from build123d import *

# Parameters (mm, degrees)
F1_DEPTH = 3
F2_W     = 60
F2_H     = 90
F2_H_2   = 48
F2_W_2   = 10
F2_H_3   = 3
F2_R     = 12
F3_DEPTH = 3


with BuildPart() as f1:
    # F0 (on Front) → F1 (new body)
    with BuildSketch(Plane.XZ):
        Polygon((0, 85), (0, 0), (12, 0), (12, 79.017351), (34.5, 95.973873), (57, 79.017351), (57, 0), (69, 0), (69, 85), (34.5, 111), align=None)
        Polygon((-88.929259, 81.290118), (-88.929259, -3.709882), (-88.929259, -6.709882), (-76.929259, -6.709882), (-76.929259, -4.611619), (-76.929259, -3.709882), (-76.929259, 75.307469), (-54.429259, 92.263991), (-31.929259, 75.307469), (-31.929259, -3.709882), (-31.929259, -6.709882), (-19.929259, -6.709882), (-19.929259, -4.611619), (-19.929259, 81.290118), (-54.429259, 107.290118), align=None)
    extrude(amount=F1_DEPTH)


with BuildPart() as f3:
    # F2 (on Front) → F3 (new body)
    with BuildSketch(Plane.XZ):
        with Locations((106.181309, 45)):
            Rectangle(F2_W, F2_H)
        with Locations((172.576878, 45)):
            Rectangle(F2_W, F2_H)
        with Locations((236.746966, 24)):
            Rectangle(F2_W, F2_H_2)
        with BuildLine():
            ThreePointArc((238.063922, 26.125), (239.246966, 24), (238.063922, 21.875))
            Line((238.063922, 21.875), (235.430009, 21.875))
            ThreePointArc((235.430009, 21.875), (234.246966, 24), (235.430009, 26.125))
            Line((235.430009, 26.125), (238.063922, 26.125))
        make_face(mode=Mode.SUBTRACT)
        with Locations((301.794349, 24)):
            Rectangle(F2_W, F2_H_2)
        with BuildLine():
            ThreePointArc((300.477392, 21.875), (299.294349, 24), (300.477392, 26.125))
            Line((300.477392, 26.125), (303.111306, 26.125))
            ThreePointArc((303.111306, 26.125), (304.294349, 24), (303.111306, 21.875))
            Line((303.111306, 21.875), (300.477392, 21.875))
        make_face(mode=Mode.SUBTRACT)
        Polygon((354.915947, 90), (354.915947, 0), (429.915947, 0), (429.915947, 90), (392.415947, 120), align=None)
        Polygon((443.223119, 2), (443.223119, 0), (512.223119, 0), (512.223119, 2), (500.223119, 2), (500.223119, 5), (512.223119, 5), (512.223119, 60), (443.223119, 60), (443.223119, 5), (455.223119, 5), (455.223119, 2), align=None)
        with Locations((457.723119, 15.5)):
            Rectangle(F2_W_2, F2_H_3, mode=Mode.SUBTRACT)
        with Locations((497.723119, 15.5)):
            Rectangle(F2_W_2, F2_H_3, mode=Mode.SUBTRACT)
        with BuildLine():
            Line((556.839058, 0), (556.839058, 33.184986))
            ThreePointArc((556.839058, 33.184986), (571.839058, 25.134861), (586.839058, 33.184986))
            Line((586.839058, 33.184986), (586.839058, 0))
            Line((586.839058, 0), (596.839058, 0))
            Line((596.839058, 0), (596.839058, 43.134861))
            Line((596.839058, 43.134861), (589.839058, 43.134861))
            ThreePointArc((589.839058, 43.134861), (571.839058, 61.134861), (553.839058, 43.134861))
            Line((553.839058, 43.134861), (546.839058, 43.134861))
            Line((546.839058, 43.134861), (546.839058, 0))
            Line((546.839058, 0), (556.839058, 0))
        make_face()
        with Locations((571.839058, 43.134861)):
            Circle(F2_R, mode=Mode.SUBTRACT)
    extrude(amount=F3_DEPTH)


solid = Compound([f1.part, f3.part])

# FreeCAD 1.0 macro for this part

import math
import FreeCAD as App
import Part
import Sketcher
from FreeCAD import Vector
Q = App.Units.Quantity


def add_polygon(sketch, points):
    """Adds a closed chain of lines whose ends are joined by coincident constraints."""
    first, n = sketch.GeometryCount, len(points)
    for a, b in zip(points, points[1:] + points[:1]):
        sketch.addGeometry(Part.LineSegment(App.Vector(*a, 0), App.Vector(*b, 0)), False)
    for i in range(n):
        sketch.addConstraint(Sketcher.Constraint("Coincident", first + i, 2, first + (i + 1) % n, 1))

doc = App.newDocument("Part")
body = doc.addObject("PartDesign::Body", "Body")
body.AllowCompound = True

sketch1 = doc.addObject("Sketcher::SketchObject", "Sketch")
body.addObject(sketch1)
sketch1.AttachmentSupport = (doc.XZ_Plane, [""])
sketch1.MapMode = "FlatFace"
add_polygon(sketch1, [(0, 85), (0, 0), (12, 0), (12, 79.017351), (34.5, 95.973873), (57, 79.017351), (57, 0), (69, 0), (69, 85), (34.5, 111)])
add_polygon(sketch1, [(-88.929259, 81.290118), (-88.929259, -6.709882), (-76.929259, -6.709882), (-76.929259, 75.307469), (-54.429259, 92.263991), (-31.929259, 75.307469), (-31.929259, -6.709882), (-19.929259, -6.709882), (-19.929259, 81.290118), (-54.429259, 107.290118)])
sketch1.addConstraint(Sketcher.Constraint("Vertical", 0))
sketch1.addConstraint(Sketcher.Constraint("Horizontal", 1))
sketch1.addConstraint(Sketcher.Constraint("Vertical", 2))
sketch1.addConstraint(Sketcher.Constraint("Vertical", 5))
sketch1.addConstraint(Sketcher.Constraint("Horizontal", 6))
sketch1.addConstraint(Sketcher.Constraint("Vertical", 7))
sketch1.addConstraint(Sketcher.Constraint("Vertical", 10))
sketch1.addConstraint(Sketcher.Constraint("Horizontal", 11))
sketch1.addConstraint(Sketcher.Constraint("Vertical", 12))
sketch1.addConstraint(Sketcher.Constraint("Vertical", 15))
sketch1.addConstraint(Sketcher.Constraint("Horizontal", 16))
sketch1.addConstraint(Sketcher.Constraint("Vertical", 17))
sketch1.addConstraint(Sketcher.Constraint("Coincident", 0, 2, -1, 1))
sketch1.addConstraint(Sketcher.Constraint("PointOnObject", 5, 2, -1))
sketch1.addConstraint(Sketcher.Constraint("Parallel", 4, 8))
sketch1.addConstraint(Sketcher.Constraint("Parallel", 3, 9))
sketch1.addConstraint(Sketcher.Constraint("Parallel", 9, 13))
sketch1.addConstraint(Sketcher.Constraint("Parallel", 8, 14))
sketch1.addConstraint(Sketcher.Constraint("Parallel", 14, 18))
sketch1.addConstraint(Sketcher.Constraint("Parallel", 13, 19))
sketch1.addConstraint(Sketcher.Constraint("Horizontal", 2, 2, 4, 2))
sketch1.addConstraint(Sketcher.Constraint("Horizontal", 7, 2, 9, 2))
sketch1.addConstraint(Sketcher.Constraint("Horizontal", 12, 2, 14, 2))
sketch1.addConstraint(Sketcher.Constraint("Horizontal", 11, 2, 15, 2))
sketch1.addConstraint(Sketcher.Constraint("Horizontal", 17, 2, 19, 2))
sketch1.addConstraint(Sketcher.Constraint("Vertical", 3, 2, 8, 2))
sketch1.addConstraint(Sketcher.Constraint("Vertical", 13, 2, 18, 2))
sketch1.addConstraint(Sketcher.Constraint("Equal", 1, 6))
sketch1.addConstraint(Sketcher.Constraint("Equal", 6, 11))
sketch1.addConstraint(Sketcher.Constraint("Equal", 4, 13))
sketch1.addConstraint(Sketcher.Constraint("DistanceX", 1, 1, 1, 2, Q("12 mm")))
sketch1.addConstraint(Sketcher.Constraint("DistanceY", 0, 2, 0, 1, Q("85 mm")))
sketch1.addConstraint(Sketcher.Constraint("DistanceY", 10, 2, 10, 1, Q("88 mm")))
sketch1.addConstraint(Sketcher.Constraint("DistanceX", -1, 1, 4, 2, Q("57 mm")))
sketch1.addConstraint(Sketcher.Constraint("DistanceY", -1, 1, 8, 2, Q("111 mm")))
sketch1.addConstraint(Sketcher.Constraint("DistanceY", 2, 1, 2, 2, Q("79.017351 mm")))
sketch1.addConstraint(Sketcher.Constraint("DistanceY", 12, 1, 12, 2, Q("82.017351 mm")))
sketch1.addConstraint(Sketcher.Constraint("DistanceX", 10, 2, -1, 1, Q("88.929259 mm")))
sketch1.addConstraint(Sketcher.Constraint("DistanceY", -1, 1, 12, 2, Q("75.307469 mm")))
pad1 = doc.addObject("PartDesign::Pad", "Pad")
body.addObject(pad1)
pad1.Profile = sketch1
pad1.Length = 3
body2 = doc.addObject("PartDesign::Body", "Body001")
body2.AllowCompound = True

sketch2 = doc.addObject("Sketcher::SketchObject", "Sketch001")
body2.addObject(sketch2)
sketch2.AttachmentSupport = (doc.getObject("XZ_Plane001"), [""])
sketch2.MapMode = "FlatFace"
add_polygon(sketch2, [(76.181309, 90), (76.181309, 0), (136.181309, 0), (136.181309, 90)])
add_polygon(sketch2, [(142.576878, 90), (142.576878, 0), (202.576878, 0), (202.576878, 90)])
add_polygon(sketch2, [(206.746966, 48), (206.746966, 0), (266.746966, 0), (266.746966, 48)])
sketch2.addGeometry(Part.LineSegment(Vector(235.430009, 26.125, 0), Vector(238.063922, 26.125, 0)), False)
sketch2.addGeometry(Part.ArcOfCircle(Part.Circle(Vector(236.746967, 24, 0), Vector(0, 0, 1), 2.499999), math.radians(-58.211699), math.radians(58.211699)), False)
sketch2.addGeometry(Part.LineSegment(Vector(238.063922, 21.875, 0), Vector(235.430009, 21.875, 0)), False)
sketch2.addGeometry(Part.ArcOfCircle(Part.Circle(Vector(236.746966, 24, 0), Vector(0, 0, 1), 2.5), math.radians(121.788342), math.radians(238.211658)), False)
add_polygon(sketch2, [(271.794349, 48), (271.794349, 0), (331.794349, 0), (331.794349, 48)])
sketch2.addGeometry(Part.LineSegment(Vector(303.111306, 21.875, 0), Vector(300.477392, 21.875, 0)), False)
sketch2.addGeometry(Part.ArcOfCircle(Part.Circle(Vector(301.794349, 24, 0), Vector(0, 0, 1), 2.5), math.radians(121.788342), math.radians(238.211658)), False)
sketch2.addGeometry(Part.LineSegment(Vector(300.477392, 26.125, 0), Vector(303.111306, 26.125, 0)), False)
sketch2.addGeometry(Part.ArcOfCircle(Part.Circle(Vector(301.794349, 24, 0), Vector(0, 0, 1), 2.5), math.radians(-58.211658), math.radians(58.211658)), False)
add_polygon(sketch2, [(354.915947, 90), (354.915947, 0), (429.915947, 0), (429.915947, 90), (392.415947, 120)])
add_polygon(sketch2, [(443.223119, 2), (443.223119, 0), (512.223119, 0), (512.223119, 2), (500.223119, 2), (500.223119, 5), (512.223119, 5), (512.223119, 60), (443.223119, 60), (443.223119, 5), (455.223119, 5), (455.223119, 2)])
add_polygon(sketch2, [(462.723119, 14), (452.723119, 14), (452.723119, 17), (462.723119, 17)])
add_polygon(sketch2, [(502.723119, 14), (492.723119, 14), (492.723119, 17), (502.723119, 17)])
sketch2.addGeometry(Part.LineSegment(Vector(556.839058, 0, 0), Vector(556.839058, 33.184986, 0)), False)
sketch2.addGeometry(Part.ArcOfCircle(Part.Circle(Vector(571.839058, 43.134862, 0), Vector(0, 0, 1), 18.000001), math.radians(-146.442687), math.radians(-33.557313)), False)
sketch2.addGeometry(Part.LineSegment(Vector(586.839058, 33.184986, 0), Vector(586.839058, 0, 0)), False)
sketch2.addGeometry(Part.LineSegment(Vector(586.839058, 0, 0), Vector(596.839058, 0, 0)), False)
sketch2.addGeometry(Part.LineSegment(Vector(596.839058, 0, 0), Vector(596.839058, 43.134861, 0)), False)
sketch2.addGeometry(Part.LineSegment(Vector(596.839058, 43.134861, 0), Vector(589.839058, 43.134861, 0)), False)
sketch2.addGeometry(Part.ArcOfCircle(Part.Circle(Vector(571.839058, 43.134861, 0), Vector(0, 0, 1), 18), math.radians(0), math.radians(180)), False)
sketch2.addGeometry(Part.LineSegment(Vector(553.839058, 43.134861, 0), Vector(546.839058, 43.134861, 0)), False)
sketch2.addGeometry(Part.LineSegment(Vector(546.839058, 43.134861, 0), Vector(546.839058, 0, 0)), False)
sketch2.addGeometry(Part.LineSegment(Vector(546.839058, 0, 0), Vector(556.839058, 0, 0)), False)
sketch2.addGeometry(Part.Circle(Vector(571.839058, 43.134861, 0), Vector(0, 0, 1), 12), False)
sketch2.addConstraint(Sketcher.Constraint("Coincident", 12, 2, 13, 2))
sketch2.addConstraint(Sketcher.Constraint("Coincident", 13, 1, 14, 1))
sketch2.addConstraint(Sketcher.Constraint("Coincident", 14, 2, 15, 2))
sketch2.addConstraint(Sketcher.Constraint("Coincident", 15, 1, 12, 1))
sketch2.addConstraint(Sketcher.Constraint("Coincident", 20, 2, 21, 2))
sketch2.addConstraint(Sketcher.Constraint("Coincident", 21, 1, 22, 1))
sketch2.addConstraint(Sketcher.Constraint("Coincident", 22, 2, 23, 2))
sketch2.addConstraint(Sketcher.Constraint("Coincident", 23, 1, 20, 1))
sketch2.addConstraint(Sketcher.Constraint("Coincident", 49, 2, 50, 1))
sketch2.addConstraint(Sketcher.Constraint("Coincident", 50, 2, 51, 1))
sketch2.addConstraint(Sketcher.Constraint("Coincident", 51, 2, 52, 1))
sketch2.addConstraint(Sketcher.Constraint("Coincident", 52, 2, 53, 1))
sketch2.addConstraint(Sketcher.Constraint("Coincident", 53, 2, 54, 1))
sketch2.addConstraint(Sketcher.Constraint("Coincident", 54, 2, 55, 1))
sketch2.addConstraint(Sketcher.Constraint("Coincident", 55, 2, 56, 1))
sketch2.addConstraint(Sketcher.Constraint("Coincident", 56, 2, 57, 1))
sketch2.addConstraint(Sketcher.Constraint("Coincident", 57, 2, 58, 1))
sketch2.addConstraint(Sketcher.Constraint("Coincident", 58, 2, 49, 1))
sketch2.addConstraint(Sketcher.Constraint("Vertical", 0))
sketch2.addConstraint(Sketcher.Constraint("Horizontal", 1))
sketch2.addConstraint(Sketcher.Constraint("Vertical", 2))
sketch2.addConstraint(Sketcher.Constraint("Horizontal", 3))
sketch2.addConstraint(Sketcher.Constraint("Vertical", 4))
sketch2.addConstraint(Sketcher.Constraint("Horizontal", 5))
sketch2.addConstraint(Sketcher.Constraint("Vertical", 6))
sketch2.addConstraint(Sketcher.Constraint("Horizontal", 7))
sketch2.addConstraint(Sketcher.Constraint("Vertical", 8))
sketch2.addConstraint(Sketcher.Constraint("Horizontal", 9))
sketch2.addConstraint(Sketcher.Constraint("Vertical", 10))
sketch2.addConstraint(Sketcher.Constraint("Horizontal", 11))
sketch2.addConstraint(Sketcher.Constraint("Horizontal", 12))
sketch2.addConstraint(Sketcher.Constraint("Horizontal", 14))
sketch2.addConstraint(Sketcher.Constraint("Vertical", 16))
sketch2.addConstraint(Sketcher.Constraint("Horizontal", 17))
sketch2.addConstraint(Sketcher.Constraint("Vertical", 18))
sketch2.addConstraint(Sketcher.Constraint("Horizontal", 19))
sketch2.addConstraint(Sketcher.Constraint("Horizontal", 20))
sketch2.addConstraint(Sketcher.Constraint("Horizontal", 22))
sketch2.addConstraint(Sketcher.Constraint("Vertical", 24))
sketch2.addConstraint(Sketcher.Constraint("Horizontal", 25))
sketch2.addConstraint(Sketcher.Constraint("Vertical", 26))
sketch2.addConstraint(Sketcher.Constraint("Vertical", 29))
sketch2.addConstraint(Sketcher.Constraint("Horizontal", 30))
sketch2.addConstraint(Sketcher.Constraint("Vertical", 31))
sketch2.addConstraint(Sketcher.Constraint("Horizontal", 32))
sketch2.addConstraint(Sketcher.Constraint("Vertical", 33))
sketch2.addConstraint(Sketcher.Constraint("Horizontal", 34))
sketch2.addConstraint(Sketcher.Constraint("Vertical", 35))
sketch2.addConstraint(Sketcher.Constraint("Horizontal", 36))
sketch2.addConstraint(Sketcher.Constraint("Vertical", 37))
sketch2.addConstraint(Sketcher.Constraint("Horizontal", 38))
sketch2.addConstraint(Sketcher.Constraint("Vertical", 39))
sketch2.addConstraint(Sketcher.Constraint("Horizontal", 40))
sketch2.addConstraint(Sketcher.Constraint("Horizontal", 41))
sketch2.addConstraint(Sketcher.Constraint("Vertical", 42))
sketch2.addConstraint(Sketcher.Constraint("Horizontal", 43))
sketch2.addConstraint(Sketcher.Constraint("Vertical", 44))
sketch2.addConstraint(Sketcher.Constraint("Horizontal", 45))
sketch2.addConstraint(Sketcher.Constraint("Vertical", 46))
sketch2.addConstraint(Sketcher.Constraint("Horizontal", 47))
sketch2.addConstraint(Sketcher.Constraint("Vertical", 48))
sketch2.addConstraint(Sketcher.Constraint("Vertical", 49))
sketch2.addConstraint(Sketcher.Constraint("Vertical", 51))
sketch2.addConstraint(Sketcher.Constraint("Horizontal", 52))
sketch2.addConstraint(Sketcher.Constraint("Vertical", 53))
sketch2.addConstraint(Sketcher.Constraint("Horizontal", 54))
sketch2.addConstraint(Sketcher.Constraint("Horizontal", 56))
sketch2.addConstraint(Sketcher.Constraint("Vertical", 57))
sketch2.addConstraint(Sketcher.Constraint("Horizontal", 58))
sketch2.addConstraint(Sketcher.Constraint("Coincident", 15, 3, 13, 3))
sketch2.addConstraint(Sketcher.Constraint("Coincident", 23, 3, 21, 3))
sketch2.addConstraint(Sketcher.Constraint("Coincident", 55, 3, 50, 3))
sketch2.addConstraint(Sketcher.Constraint("Coincident", 59, 3, 50, 3))
sketch2.addConstraint(Sketcher.Constraint("Equal", 13, 15))
sketch2.addConstraint(Sketcher.Constraint("Equal", 15, 21))
sketch2.addConstraint(Sketcher.Constraint("Equal", 21, 23))
sketch2.addConstraint(Sketcher.Constraint("Equal", 50, 55))
sketch2.addConstraint(Sketcher.Constraint("PointOnObject", 0, 2, -1))
sketch2.addConstraint(Sketcher.Constraint("PointOnObject", 4, 2, -1))
sketch2.addConstraint(Sketcher.Constraint("PointOnObject", 8, 2, -1))
sketch2.addConstraint(Sketcher.Constraint("PointOnObject", 16, 2, -1))
sketch2.addConstraint(Sketcher.Constraint("PointOnObject", 24, 2, -1))
sketch2.addConstraint(Sketcher.Constraint("PointOnObject", 29, 2, -1))
sketch2.addConstraint(Sketcher.Constraint("PointOnObject", 51, 2, -1))
sketch2.addConstraint(Sketcher.Constraint("PointOnObject", 57, 2, -1))
sketch2.addConstraint(Sketcher.Constraint("Horizontal", 15, 3, 21, 3))
sketch2.addConstraint(Sketcher.Constraint("Horizontal", 3, 2, 6, 2))
sketch2.addConstraint(Sketcher.Constraint("Horizontal", 11, 2, 18, 2))
sketch2.addConstraint(Sketcher.Constraint("Horizontal", 14, 2, 20, 2))
sketch2.addConstraint(Sketcher.Constraint("Horizontal", 15, 1, 21, 1))
sketch2.addConstraint(Sketcher.Constraint("Horizontal", 7, 2, 26, 2))
sketch2.addConstraint(Sketcher.Constraint("Horizontal", 26, 2, 28, 2))
sketch2.addConstraint(Sketcher.Constraint("Horizontal", 34, 2, 37, 2))
sketch2.addConstraint(Sketcher.Constraint("Horizontal", 32, 2, 39, 2))
sketch2.addConstraint(Sketcher.Constraint("Horizontal", 44, 2, 45, 2))
sketch2.addConstraint(Sketcher.Constraint("Horizontal", 43, 2, 46, 2))
sketch2.addConstraint(Sketcher.Constraint("Horizontal", 49, 2, 50, 2))
sketch2.addConstraint(Sketcher.Constraint("Horizontal", 59, 3, 53, 2))
sketch2.addConstraint(Sketcher.Constraint("Horizontal", 54, 2, 55, 2))
sketch2.addConstraint(Sketcher.Constraint("Vertical", 12, 2, 13, 1))
sketch2.addConstraint(Sketcher.Constraint("Vertical", 31, 2, 34, 2))
sketch2.addConstraint(Sketcher.Constraint("Vertical", 29, 2, 36, 2))
sketch2.addConstraint(Sketcher.Constraint("Equal", 3, 5))
sketch2.addConstraint(Sketcher.Constraint("Equal", 7, 9))
sketch2.addConstraint(Sketcher.Constraint("Equal", 11, 17))
sketch2.addConstraint(Sketcher.Constraint("Equal", 34, 38))
sketch2.addConstraint(Sketcher.Constraint("Equal", 43, 45))
sketch2.addConstraint(Sketcher.Constraint("Equal", 47, 52))
sketch2.addConstraint(Sketcher.Constraint("Equal", 54, 56))
sketch2.addConstraint(Sketcher.Constraint("Equal", 39, 42))
sketch2.addConstraint(Sketcher.Constraint("Equal", 27, 28))
sketch2.addConstraint(Sketcher.Constraint("Diameter", 59, Q("24 mm")))
sketch2.addConstraint(Sketcher.Constraint("Radius", 50, Q("18.000001 mm")))
sketch2.addConstraint(Sketcher.Constraint("Radius", 13, Q("2.499999 mm")))
sketch2.addConstraint(Sketcher.Constraint("DistanceX", 1, 1, 1, 2, Q("60 mm")))
sketch2.addConstraint(Sketcher.Constraint("DistanceX", 25, 1, 25, 2, Q("75 mm")))
sketch2.addConstraint(Sketcher.Constraint("DistanceX", 30, 1, 30, 2, Q("69 mm")))
sketch2.addConstraint(Sketcher.Constraint("DistanceX", 32, 2, 32, 1, Q("12 mm")))
sketch2.addConstraint(Sketcher.Constraint("DistanceX", 41, 2, 41, 1, Q("10 mm")))
sketch2.addConstraint(Sketcher.Constraint("DistanceX", 54, 2, 54, 1, Q("7 mm")))
sketch2.addConstraint(Sketcher.Constraint("DistanceY", 0, 2, 0, 1, Q("90 mm")))
sketch2.addConstraint(Sketcher.Constraint("DistanceY", 8, 2, 8, 1, Q("48 mm")))
sketch2.addConstraint(Sketcher.Constraint("DistanceY", 29, 2, 29, 1, Q("2 mm")))
sketch2.addConstraint(Sketcher.Constraint("DistanceY", 33, 1, 33, 2, Q("3 mm")))
sketch2.addConstraint(Sketcher.Constraint("DistanceY", 35, 1, 35, 2, Q("55 mm")))
sketch2.addConstraint(Sketcher.Constraint("DistanceY", -1, 1, 13, 3, Q("24 mm")))
sketch2.addConstraint(Sketcher.Constraint("DistanceY", -1, 1, 27, 2, Q("120 mm")))
sketch2.addConstraint(Sketcher.Constraint("DistanceY", -1, 1, 41, 2, Q("14 mm")))
sketch2.addConstraint(Sketcher.Constraint("DistanceY", -1, 1, 12, 2, Q("26.125 mm")))
sketch2.addConstraint(Sketcher.Constraint("DistanceY", 53, 1, 53, 2, Q("43.134861 mm")))
sketch2.addConstraint(Sketcher.Constraint("DistanceX", -1, 1, 21, 3, Q("301.794349 mm")))
sketch2.addConstraint(Sketcher.Constraint("DistanceX", -1, 1, 50, 3, Q("571.839058 mm")))
sketch2.addConstraint(Sketcher.Constraint("DistanceX", -1, 1, 0, 2, Q("76.181309 mm")))
sketch2.addConstraint(Sketcher.Constraint("DistanceX", -1, 1, 4, 2, Q("142.576878 mm")))
sketch2.addConstraint(Sketcher.Constraint("DistanceX", -1, 1, 12, 2, Q("238.063922 mm")))
sketch2.addConstraint(Sketcher.Constraint("DistanceX", -1, 1, 16, 2, Q("271.794349 mm")))
sketch2.addConstraint(Sketcher.Constraint("DistanceX", -1, 1, 29, 2, Q("443.223119 mm")))
sketch2.addConstraint(Sketcher.Constraint("DistanceX", -1, 1, 41, 2, Q("452.723119 mm")))
sketch2.addConstraint(Sketcher.Constraint("DistanceX", -1, 1, 45, 2, Q("492.723119 mm")))
sketch2.addConstraint(Sketcher.Constraint("DistanceX", -1, 1, 8, 2, Q("206.746966 mm")))
sketch2.addConstraint(Sketcher.Constraint("DistanceX", -1, 1, 24, 2, Q("354.915947 mm")))
pad2 = doc.addObject("PartDesign::Pad", "Pad001")
body2.addObject(pad2)
pad2.Profile = sketch2
pad2.Length = 3

doc.recompute()
